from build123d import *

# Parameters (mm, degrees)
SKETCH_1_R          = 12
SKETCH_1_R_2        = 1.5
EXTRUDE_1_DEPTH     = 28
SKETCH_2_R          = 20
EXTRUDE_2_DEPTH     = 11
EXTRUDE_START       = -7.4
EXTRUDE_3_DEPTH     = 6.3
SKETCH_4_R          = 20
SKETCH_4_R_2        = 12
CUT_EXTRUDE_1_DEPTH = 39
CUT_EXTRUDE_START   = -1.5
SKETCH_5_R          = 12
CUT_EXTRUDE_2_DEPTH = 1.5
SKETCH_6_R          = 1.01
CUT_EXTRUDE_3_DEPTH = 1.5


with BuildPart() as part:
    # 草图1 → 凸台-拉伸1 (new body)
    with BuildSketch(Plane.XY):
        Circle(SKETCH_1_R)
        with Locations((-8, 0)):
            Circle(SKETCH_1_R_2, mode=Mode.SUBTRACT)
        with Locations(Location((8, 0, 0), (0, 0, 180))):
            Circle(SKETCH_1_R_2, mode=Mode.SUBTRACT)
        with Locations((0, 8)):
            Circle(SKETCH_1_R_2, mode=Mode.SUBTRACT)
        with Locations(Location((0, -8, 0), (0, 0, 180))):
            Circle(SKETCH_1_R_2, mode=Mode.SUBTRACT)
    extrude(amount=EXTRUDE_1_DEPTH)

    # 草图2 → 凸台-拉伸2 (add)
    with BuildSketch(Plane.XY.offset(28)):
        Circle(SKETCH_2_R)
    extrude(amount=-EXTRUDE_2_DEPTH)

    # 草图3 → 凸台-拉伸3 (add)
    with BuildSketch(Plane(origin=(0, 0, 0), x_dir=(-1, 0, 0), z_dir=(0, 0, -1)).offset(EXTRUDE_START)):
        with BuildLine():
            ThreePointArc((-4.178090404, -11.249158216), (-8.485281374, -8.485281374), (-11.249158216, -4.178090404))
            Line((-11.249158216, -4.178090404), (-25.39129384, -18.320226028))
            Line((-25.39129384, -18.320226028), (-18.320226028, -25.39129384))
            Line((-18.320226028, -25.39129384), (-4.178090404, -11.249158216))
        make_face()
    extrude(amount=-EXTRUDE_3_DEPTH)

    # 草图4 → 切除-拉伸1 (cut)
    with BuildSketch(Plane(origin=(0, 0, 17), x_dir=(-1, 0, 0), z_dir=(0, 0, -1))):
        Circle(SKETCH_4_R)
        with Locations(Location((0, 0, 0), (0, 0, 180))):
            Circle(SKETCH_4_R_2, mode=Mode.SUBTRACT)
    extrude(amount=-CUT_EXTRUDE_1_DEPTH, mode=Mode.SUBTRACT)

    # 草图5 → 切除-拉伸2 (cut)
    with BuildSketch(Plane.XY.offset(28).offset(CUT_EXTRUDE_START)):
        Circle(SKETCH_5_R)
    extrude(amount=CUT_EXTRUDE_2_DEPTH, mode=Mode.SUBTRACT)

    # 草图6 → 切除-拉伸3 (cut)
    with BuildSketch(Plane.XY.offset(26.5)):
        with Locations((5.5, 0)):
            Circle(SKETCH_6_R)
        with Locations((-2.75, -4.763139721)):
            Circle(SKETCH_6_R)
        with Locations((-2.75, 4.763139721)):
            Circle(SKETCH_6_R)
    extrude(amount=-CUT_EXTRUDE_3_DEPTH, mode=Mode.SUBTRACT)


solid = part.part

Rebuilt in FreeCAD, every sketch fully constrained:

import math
import FreeCAD as App
import Part
import Sketcher

V = App.Vector
Q = App.Units.Quantity

doc = App.newDocument("Part")
body = doc.addObject("PartDesign::Body", "Body")

# Sketch on XY plane
sketch1 = body.newObject("Sketcher::SketchObject", "Sketch")
sketch1.AttachmentSupport = (doc.getObject("XY_Plane"), [""])
sketch1.MapMode = "FlatFace"
sketch1.addGeometry(Part.Circle(V(0, 0, 0), V(0, 0, 1), 12), False)
sketch1.addGeometry(Part.Circle(V(0, -8, 0), V(0, 0, 1), 1.5), False)
sketch1.addGeometry(Part.Circle(V(-8, 0, 0), V(0, 0, 1), 1.5), False)
sketch1.addGeometry(Part.Circle(V(8, 0, 0), V(0, 0, 1), 1.5), False)
sketch1.addGeometry(Part.Circle(V(0, 8, 0), V(0, 0, 1), 1.5), False)
sketch1.addConstraint(Sketcher.Constraint("Coincident", 0, 3, -1, 1))
sketch1.addConstraint(Sketcher.Constraint("Equal", 1, 2))
sketch1.addConstraint(Sketcher.Constraint("Equal", 2, 3))
sketch1.addConstraint(Sketcher.Constraint("Equal", 3, 4))
sketch1.addConstraint(Sketcher.Constraint("Symmetric", 2, 3, 3, 3, -1, 1))
sketch1.addConstraint(Sketcher.Constraint("Symmetric", 1, 3, 4, 3, -1, 1))
sketch1.addConstraint(Sketcher.Constraint("PointOnObject", 1, 3, -2))
sketch1.addConstraint(Sketcher.Constraint("PointOnObject", 2, 3, -1))
sketch1.addConstraint(Sketcher.Constraint("Diameter", 0, Q("24 mm")))
sketch1.addConstraint(Sketcher.Constraint("Diameter", 1, Q("3 mm")))
sketch1.addConstraint(Sketcher.Constraint("DistanceY", 1, 3, -1, 1, Q("8 mm")))
sketch1.addConstraint(Sketcher.Constraint("DistanceX", 2, 3, -1, 1, Q("8 mm")))
pad1 = body.newObject("PartDesign::Pad", "Pad")
pad1.Profile = sketch1
pad1.Length = 28

# Sketch on XY plane
sketch2 = body.newObject("Sketcher::SketchObject", "Sketch001")
sketch2.AttachmentSupport = (doc.getObject("XY_Plane"), [""])
sketch2.MapMode = "FlatFace"
sketch2.AttachmentOffset = App.Placement(V(0, 0, 28), App.Rotation())
sketch2.addGeometry(Part.Circle(V(0, 0, 0), V(0, 0, 1), 20), False)
sketch2.addConstraint(Sketcher.Constraint("Coincident", 0, 3, -1, 1))
sketch2.addConstraint(Sketcher.Constraint("Diameter", 0, Q("40 mm")))
pad2 = body.newObject("PartDesign::Pad", "Pad001")
pad2.Profile = sketch2
pad2.Length = 11
pad2.Reversed = True

# Sketch on XY plane
sketch3 = body.newObject("Sketcher::SketchObject", "Sketch002")
sketch3.AttachmentSupport = (doc.getObject("XY_Plane"), [""])
sketch3.MapMode = "FlatFace"
sketch3.AttachmentOffset = App.Placement(V(0, 0, 7.4), App.Rotation())
sketch3.addGeometry(Part.ArcOfCircle(Part.Circle(V(0, 0, 0), V(0, 0, 1), 12), math.radians(-70), math.radians(-20)), False)
sketch3.addGeometry(Part.LineSegment(V(11, -4, 0), V(25, -18, 0)), False)
sketch3.addGeometry(Part.LineSegment(V(25, -18, 0), V(18, -25, 0)), False)
sketch3.addGeometry(Part.LineSegment(V(18, -25, 0), V(4, -11, 0)), False)
sketch3.addConstraint(Sketcher.Constraint("Coincident", 0, 2, 1, 1))
sketch3.addConstraint(Sketcher.Constraint("Coincident", 1, 2, 2, 1))
sketch3.addConstraint(Sketcher.Constraint("Coincident", 2, 2, 3, 1))
sketch3.addConstraint(Sketcher.Constraint("Coincident", 3, 2, 0, 1))
sketch3.addConstraint(Sketcher.Constraint("Coincident", 0, 3, -1, 1))
sketch3.addConstraint(Sketcher.Constraint("Perpendicular", 1, 2))
sketch3.addConstraint(Sketcher.Constraint("Perpendicular", 2, 3))
sketch3.addConstraint(Sketcher.Constraint("Equal", 1, 3))
sketch3.addConstraint(Sketcher.Constraint("Radius", 0, Q("12 mm")))
sketch3.addConstraint(Sketcher.Constraint("Angle", 1, Q("-45 deg")))
sketch3.addConstraint(Sketcher.Constraint("Distance", 1, Q("20 mm")))
sketch3.addConstraint(Sketcher.Constraint("Distance", 2, Q("10 mm")))
pad3 = body.newObject("PartDesign::Pad", "Pad002")
pad3.Profile = sketch3
pad3.Length = 6.3

# Sketch on XY plane
sketch4 = body.newObject("Sketcher::SketchObject", "Sketch003")
sketch4.AttachmentSupport = (doc.getObject("XY_Plane"), [""])
sketch4.MapMode = "FlatFace"
sketch4.AttachmentOffset = App.Placement(V(0, 0, 17), App.Rotation())
sketch4.addGeometry(Part.Circle(V(0, 0, 0), V(0, 0, 1), 20), False)
sketch4.addGeometry(Part.Circle(V(0, 0, 0), V(0, 0, 1), 12), False)
sketch4.addConstraint(Sketcher.Constraint("Coincident", 0, 3, -1, 1))
sketch4.addConstraint(Sketcher.Constraint("Coincident", 1, 3, -1, 1))
sketch4.addConstraint(Sketcher.Constraint("Diameter", 0, Q("40 mm")))
sketch4.addConstraint(Sketcher.Constraint("Diameter", 1, Q("24 mm")))
pocket1 = body.newObject("PartDesign::Pocket", "Pocket")
pocket1.Profile = sketch4
pocket1.Length = 39
pocket1.Reversed = True

# Sketch on XY plane
sketch5 = body.newObject("Sketcher::SketchObject", "Sketch004")
sketch5.AttachmentSupport = (doc.getObject("XY_Plane"), [""])
sketch5.MapMode = "FlatFace"
sketch5.AttachmentOffset = App.Placement(V(0, 0, 26.5), App.Rotation())
sketch5.addGeometry(Part.Circle(V(0, 0, 0), V(0, 0, 1), 12), False)
sketch5.addConstraint(Sketcher.Constraint("Coincident", 0, 3, -1, 1))
sketch5.addConstraint(Sketcher.Constraint("Diameter", 0, Q("24 mm")))
pocket2 = body.newObject("PartDesign::Pocket", "Pocket001")
pocket2.Profile = sketch5
pocket2.Length = 1.5
pocket2.Reversed = True

# Sketch on XY plane
sketch6 = body.newObject("Sketcher::SketchObject", "Sketch005")
sketch6.AttachmentSupport = (doc.getObject("XY_Plane"), [""])
sketch6.MapMode = "FlatFace"
sketch6.AttachmentOffset = App.Placement(V(0, 0, 26.5), App.Rotation())
sketch6.addGeometry(Part.Circle(V(5.5, 0, 0), V(0, 0, 1), 1), False)
sketch6.addGeometry(Part.Circle(V(-2.8, -4.8, 0), V(0, 0, 1), 1), False)
sketch6.addGeometry(Part.Circle(V(-2.8, 4.8, 0), V(0, 0, 1), 1), False)
sketch6.addConstraint(Sketcher.Constraint("Equal", 0, 1))
sketch6.addConstraint(Sketcher.Constraint("Equal", 1, 2))
sketch6.addConstraint(Sketcher.Constraint("Symmetric", 1, 3, 2, 3, -1))
sketch6.addConstraint(Sketcher.Constraint("PointOnObject", 0, 3, -1))
sketch6.addConstraint(Sketcher.Constraint("Diameter", 0, Q("2.02 mm")))
sketch6.addConstraint(Sketcher.Constraint("DistanceX", -1, 1, 0, 3, Q("5.5 mm")))
sketch6.addConstraint(Sketcher.Constraint("DistanceX", 1, 3, -1, 1, Q("2.75 mm")))
sketch6.addConstraint(Sketcher.Constraint("DistanceY", 1, 3, -1, 1, Q("4.76314 mm")))
pocket3 = body.newObject("PartDesign::Pocket", "Pocket002")
pocket3.Profile = sketch6
pocket3.Length = 1.5

doc.recompute()
